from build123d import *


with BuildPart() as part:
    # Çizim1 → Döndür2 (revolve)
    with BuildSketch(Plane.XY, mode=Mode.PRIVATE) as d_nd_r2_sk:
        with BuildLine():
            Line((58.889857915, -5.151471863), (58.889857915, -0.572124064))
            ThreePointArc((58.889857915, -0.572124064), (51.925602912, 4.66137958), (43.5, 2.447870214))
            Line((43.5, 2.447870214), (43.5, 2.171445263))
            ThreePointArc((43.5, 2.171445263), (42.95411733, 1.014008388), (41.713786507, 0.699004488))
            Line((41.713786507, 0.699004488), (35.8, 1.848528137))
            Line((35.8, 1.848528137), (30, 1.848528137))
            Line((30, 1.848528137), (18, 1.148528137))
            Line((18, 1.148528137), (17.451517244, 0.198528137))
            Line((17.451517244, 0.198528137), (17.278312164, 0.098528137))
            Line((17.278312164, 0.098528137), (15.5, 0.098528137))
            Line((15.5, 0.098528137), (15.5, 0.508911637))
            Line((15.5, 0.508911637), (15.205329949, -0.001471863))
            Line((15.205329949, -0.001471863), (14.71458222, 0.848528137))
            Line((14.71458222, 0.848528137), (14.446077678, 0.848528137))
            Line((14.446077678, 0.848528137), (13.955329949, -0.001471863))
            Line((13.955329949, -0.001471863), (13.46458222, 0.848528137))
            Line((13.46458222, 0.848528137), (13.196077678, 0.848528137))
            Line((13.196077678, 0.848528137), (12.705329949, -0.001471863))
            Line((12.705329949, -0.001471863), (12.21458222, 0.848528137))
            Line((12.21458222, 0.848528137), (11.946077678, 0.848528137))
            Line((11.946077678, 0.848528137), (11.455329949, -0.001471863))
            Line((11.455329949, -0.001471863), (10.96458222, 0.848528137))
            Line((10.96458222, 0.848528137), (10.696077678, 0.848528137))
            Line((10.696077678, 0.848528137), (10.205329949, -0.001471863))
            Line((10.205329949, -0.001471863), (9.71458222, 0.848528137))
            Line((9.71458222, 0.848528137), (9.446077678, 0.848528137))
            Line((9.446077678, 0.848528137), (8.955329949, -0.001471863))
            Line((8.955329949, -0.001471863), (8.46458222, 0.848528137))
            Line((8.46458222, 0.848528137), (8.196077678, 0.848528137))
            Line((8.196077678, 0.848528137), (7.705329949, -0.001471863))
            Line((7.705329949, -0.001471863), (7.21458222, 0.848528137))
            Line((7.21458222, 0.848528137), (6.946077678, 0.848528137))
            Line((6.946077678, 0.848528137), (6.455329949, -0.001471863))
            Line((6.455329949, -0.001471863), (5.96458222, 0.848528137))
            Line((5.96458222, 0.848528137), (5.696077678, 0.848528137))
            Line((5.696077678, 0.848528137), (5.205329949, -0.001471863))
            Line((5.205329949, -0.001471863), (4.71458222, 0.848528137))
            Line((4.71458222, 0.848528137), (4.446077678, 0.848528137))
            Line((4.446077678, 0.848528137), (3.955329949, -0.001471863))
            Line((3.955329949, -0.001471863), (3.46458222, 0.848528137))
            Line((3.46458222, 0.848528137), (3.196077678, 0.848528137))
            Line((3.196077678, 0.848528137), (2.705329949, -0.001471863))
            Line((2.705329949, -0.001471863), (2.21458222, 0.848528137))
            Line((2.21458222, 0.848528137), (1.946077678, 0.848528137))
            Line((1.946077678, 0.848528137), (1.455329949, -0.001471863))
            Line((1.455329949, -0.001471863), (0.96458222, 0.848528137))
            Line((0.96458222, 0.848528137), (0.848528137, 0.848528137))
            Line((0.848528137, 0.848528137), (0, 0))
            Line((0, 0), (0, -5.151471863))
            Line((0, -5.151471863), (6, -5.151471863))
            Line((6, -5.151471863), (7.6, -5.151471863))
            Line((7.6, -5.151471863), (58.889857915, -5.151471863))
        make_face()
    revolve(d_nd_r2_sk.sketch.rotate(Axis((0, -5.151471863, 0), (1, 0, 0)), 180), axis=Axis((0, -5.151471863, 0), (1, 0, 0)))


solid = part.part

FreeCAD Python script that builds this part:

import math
import FreeCAD as App
import Part
import Sketcher
from FreeCAD import Vector
Q = App.Units.Quantity

doc = App.newDocument("Part")
body = doc.addObject("PartDesign::Body", "Body")

sketch1 = doc.addObject("Sketcher::SketchObject", "Sketch")
body.addObject(sketch1)
sketch1.AttachmentSupport = (doc.XY_Plane, [""])
sketch1.MapMode = "FlatFace"
sketch1.addGeometry([
    Part.LineSegment(Vector(58.89, -5.15, 0), Vector(58.89, -0.57, 0)),
    Part.ArcOfCircle(Part.Circle(Vector(50, -5.15, 0), Vector(0, 0, 1), 10), math.radians(27), math.radians(131)),
    Part.LineSegment(Vector(43.5, 2.45, 0), Vector(43.5, 2.17, 0)),
    Part.ArcOfCircle(Part.Circle(Vector(42, 2.17, 0), Vector(0, 0, 1), 1.5), math.radians(-101), math.radians(0)),
    Part.LineSegment(Vector(41.71, 0.7, 0), Vector(35.8, 1.85, 0)),
    Part.LineSegment(Vector(35.8, 1.85, 0), Vector(30, 1.85, 0)),
    Part.LineSegment(Vector(30, 1.85, 0), Vector(18, 1.15, 0)),
    Part.LineSegment(Vector(18, 1.15, 0), Vector(17.45, 0.2, 0)),
    Part.LineSegment(Vector(17.45, 0.2, 0), Vector(17.28, 0.1, 0)),
    Part.LineSegment(Vector(17.28, 0.1, 0), Vector(15.5, 0.1, 0)),
    Part.LineSegment(Vector(15.5, 0.1, 0), Vector(15.5, 0.51, 0)),
    Part.LineSegment(Vector(15.5, 0.51, 0), Vector(15.21, 0, 0)),
    Part.LineSegment(Vector(15.21, 0, 0), Vector(14.71, 0.85, 0)),
    Part.LineSegment(Vector(14.71, 0.85, 0), Vector(14.45, 0.85, 0)),
    Part.LineSegment(Vector(14.45, 0.85, 0), Vector(13.96, 0, 0)),
    Part.LineSegment(Vector(13.96, 0, 0), Vector(13.46, 0.85, 0)),
    Part.LineSegment(Vector(13.46, 0.85, 0), Vector(13.2, 0.85, 0)),
    Part.LineSegment(Vector(13.2, 0.85, 0), Vector(12.71, 0, 0)),
    Part.LineSegment(Vector(12.71, 0, 0), Vector(12.21, 0.85, 0)),
    Part.LineSegment(Vector(12.21, 0.85, 0), Vector(11.95, 0.85, 0)),
    Part.LineSegment(Vector(11.95, 0.85, 0), Vector(11.46, 0, 0)),
    Part.LineSegment(Vector(11.46, 0, 0), Vector(10.96, 0.85, 0)),
    Part.LineSegment(Vector(10.96, 0.85, 0), Vector(10.7, 0.85, 0)),
    Part.LineSegment(Vector(10.7, 0.85, 0), Vector(10.21, 0, 0)),
    Part.LineSegment(Vector(10.21, 0, 0), Vector(9.71, 0.85, 0)),
    Part.LineSegment(Vector(9.71, 0.85, 0), Vector(9.45, 0.85, 0)),
    Part.LineSegment(Vector(9.45, 0.85, 0), Vector(8.96, 0, 0)),
    Part.LineSegment(Vector(8.96, 0, 0), Vector(8.46, 0.85, 0)),
    Part.LineSegment(Vector(8.46, 0.85, 0), Vector(8.2, 0.85, 0)),
    Part.LineSegment(Vector(8.2, 0.85, 0), Vector(7.71, 0, 0)),
    Part.LineSegment(Vector(7.71, 0, 0), Vector(7.21, 0.85, 0)),
    Part.LineSegment(Vector(7.21, 0.85, 0), Vector(6.95, 0.85, 0)),
    Part.LineSegment(Vector(6.95, 0.85, 0), Vector(6.46, 0, 0)),
    Part.LineSegment(Vector(6.46, 0, 0), Vector(5.96, 0.85, 0)),
    Part.LineSegment(Vector(5.96, 0.85, 0), Vector(5.7, 0.85, 0)),
    Part.LineSegment(Vector(5.7, 0.85, 0), Vector(5.21, 0, 0)),
    Part.LineSegment(Vector(5.21, 0, 0), Vector(4.71, 0.85, 0)),
    Part.LineSegment(Vector(4.71, 0.85, 0), Vector(4.45, 0.85, 0)),
    Part.LineSegment(Vector(4.45, 0.85, 0), Vector(3.96, 0, 0)),
    Part.LineSegment(Vector(3.96, 0, 0), Vector(3.46, 0.85, 0)),
    Part.LineSegment(Vector(3.46, 0.85, 0), Vector(3.2, 0.85, 0)),
    Part.LineSegment(Vector(3.2, 0.85, 0), Vector(2.71, 0, 0)),
    Part.LineSegment(Vector(2.71, 0, 0), Vector(2.21, 0.85, 0)),
    Part.LineSegment(Vector(2.21, 0.85, 0), Vector(1.95, 0.85, 0)),
    Part.LineSegment(Vector(1.95, 0.85, 0), Vector(1.46, 0, 0)),
    Part.LineSegment(Vector(1.46, 0, 0), Vector(0.96, 0.85, 0)),
    Part.LineSegment(Vector(0.96, 0.85, 0), Vector(0.85, 0.85, 0)),
    Part.LineSegment(Vector(0.85, 0.85, 0), Vector(0, 0, 0)),
    Part.LineSegment(Vector(0, 0, 0), Vector(0, -5.15, 0)),
    Part.LineSegment(Vector(0, -5.15, 0), Vector(58.89, -5.15, 0)),
], False)
sketch1.addGeometry(Part.LineSegment(Vector(0, -5.15, 0), Vector(58.89, -5.15, 0)), True)
sketch1.addConstraint([
    Sketcher.Constraint("Coincident", 0, 2, 1, 1),
    Sketcher.Constraint("Coincident", 1, 2, 2, 1),
    Sketcher.Constraint("Tangent", 2, 2, 3, 2),
    Sketcher.Constraint("Tangent", 3, 1, 4, 1),
    Sketcher.Constraint("Coincident", 4, 2, 5, 1),
    Sketcher.Constraint("Coincident", 5, 2, 6, 1),
    Sketcher.Constraint("Coincident", 6, 2, 7, 1),
    Sketcher.Constraint("Coincident", 7, 2, 8, 1),
    Sketcher.Constraint("Coincident", 8, 2, 9, 1),
    Sketcher.Constraint("Coincident", 9, 2, 10, 1),
    Sketcher.Constraint("Coincident", 10, 2, 11, 1),
    Sketcher.Constraint("Coincident", 11, 2, 12, 1),
    Sketcher.Constraint("Coincident", 12, 2, 13, 1),
    Sketcher.Constraint("Coincident", 13, 2, 14, 1),
    Sketcher.Constraint("Coincident", 14, 2, 15, 1),
    Sketcher.Constraint("Coincident", 15, 2, 16, 1),
    Sketcher.Constraint("Coincident", 16, 2, 17, 1),
    Sketcher.Constraint("Coincident", 17, 2, 18, 1),
    Sketcher.Constraint("Coincident", 18, 2, 19, 1),
    Sketcher.Constraint("Coincident", 19, 2, 20, 1),
    Sketcher.Constraint("Coincident", 20, 2, 21, 1),
    Sketcher.Constraint("Coincident", 21, 2, 22, 1),
    Sketcher.Constraint("Coincident", 22, 2, 23, 1),
    Sketcher.Constraint("Coincident", 23, 2, 24, 1),
    Sketcher.Constraint("Coincident", 24, 2, 25, 1),
    Sketcher.Constraint("Coincident", 25, 2, 26, 1),
    Sketcher.Constraint("Coincident", 26, 2, 27, 1),
    Sketcher.Constraint("Coincident", 27, 2, 28, 1),
    Sketcher.Constraint("Coincident", 28, 2, 29, 1),
    Sketcher.Constraint("Coincident", 29, 2, 30, 1),
    Sketcher.Constraint("Coincident", 30, 2, 31, 1),
    Sketcher.Constraint("Coincident", 31, 2, 32, 1),
    Sketcher.Constraint("Coincident", 32, 2, 33, 1),
    Sketcher.Constraint("Coincident", 33, 2, 34, 1),
    Sketcher.Constraint("Coincident", 34, 2, 35, 1),
    Sketcher.Constraint("Coincident", 35, 2, 36, 1),
    Sketcher.Constraint("Coincident", 36, 2, 37, 1),
    Sketcher.Constraint("Coincident", 37, 2, 38, 1),
    Sketcher.Constraint("Coincident", 38, 2, 39, 1),
    Sketcher.Constraint("Coincident", 39, 2, 40, 1),
    Sketcher.Constraint("Coincident", 40, 2, 41, 1),
    Sketcher.Constraint("Coincident", 41, 2, 42, 1),
    Sketcher.Constraint("Coincident", 42, 2, 43, 1),
    Sketcher.Constraint("Coincident", 43, 2, 44, 1),
    Sketcher.Constraint("Coincident", 44, 2, 45, 1),
    Sketcher.Constraint("Coincident", 45, 2, 46, 1),
    Sketcher.Constraint("Coincident", 46, 2, 47, 1),
    Sketcher.Constraint("Coincident", 47, 2, 48, 1),
    Sketcher.Constraint("Coincident", 48, 2, 49, 1),
    Sketcher.Constraint("Coincident", 49, 2, 0, 1),
    Sketcher.Constraint("Vertical", 0),
    Sketcher.Constraint("Vertical", 2),
    Sketcher.Constraint("Horizontal", 5),
    Sketcher.Constraint("Horizontal", 9),
    Sketcher.Constraint("Vertical", 10),
    Sketcher.Constraint("Horizontal", 13),
    Sketcher.Constraint("Horizontal", 16),
    Sketcher.Constraint("Horizontal", 19),
    Sketcher.Constraint("Horizontal", 22),
    Sketcher.Constraint("Horizontal", 25),
    Sketcher.Constraint("Horizontal", 28),
    Sketcher.Constraint("Horizontal", 31),
    Sketcher.Constraint("Horizontal", 34),
    Sketcher.Constraint("Horizontal", 37),
    Sketcher.Constraint("Horizontal", 40),
    Sketcher.Constraint("Horizontal", 43),
    Sketcher.Constraint("Horizontal", 46),
    Sketcher.Constraint("Vertical", 48),
    Sketcher.Constraint("Horizontal", 49),
    Sketcher.Constraint("Horizontal", 50),
    Sketcher.Constraint("Coincident", 47, 2, -1, 1),
    Sketcher.Constraint("Coincident", 50, 1, 48, 2),
    Sketcher.Constraint("Parallel", 7, 11),
    Sketcher.Constraint("Perpendicular", 8, 12),
    Sketcher.Constraint("Parallel", 11, 14),
    Sketcher.Constraint("Parallel", 12, 15),
    Sketcher.Constraint("Parallel", 14, 17),
    Sketcher.Constraint("Parallel", 15, 18),
    Sketcher.Constraint("Parallel", 17, 20),
    Sketcher.Constraint("Parallel", 18, 21),
    Sketcher.Constraint("Parallel", 20, 23),
    Sketcher.Constraint("Parallel", 21, 24),
    Sketcher.Constraint("Parallel", 23, 26),
    Sketcher.Constraint("Parallel", 24, 27),
    Sketcher.Constraint("Parallel", 26, 29),
    Sketcher.Constraint("Parallel", 27, 30),
    Sketcher.Constraint("Parallel", 29, 32),
    Sketcher.Constraint("Parallel", 30, 33),
    Sketcher.Constraint("Parallel", 32, 35),
    Sketcher.Constraint("Parallel", 33, 36),
    Sketcher.Constraint("Parallel", 35, 38),
    Sketcher.Constraint("Parallel", 36, 39),
    Sketcher.Constraint("Parallel", 38, 41),
    Sketcher.Constraint("Parallel", 39, 42),
    Sketcher.Constraint("Parallel", 41, 44),
    Sketcher.Constraint("Parallel", 42, 45),
    Sketcher.Constraint("Horizontal", 11, 2, 14, 2),
    Sketcher.Constraint("Horizontal", 13, 2, 15, 2),
    Sketcher.Constraint("Horizontal", 14, 2, 17, 2),
    Sketcher.Constraint("Horizontal", 16, 2, 18, 2),
    Sketcher.Constraint("Horizontal", 17, 2, 20, 2),
    Sketcher.Constraint("Horizontal", 19, 2, 21, 2),
    Sketcher.Constraint("Horizontal", 20, 2, 23, 2),
    Sketcher.Constraint("Horizontal", 22, 2, 24, 2),
    Sketcher.Constraint("Horizontal", 23, 2, 26, 2),
    Sketcher.Constraint("Horizontal", 25, 2, 27, 2),
    Sketcher.Constraint("Horizontal", 26, 2, 29, 2),
    Sketcher.Constraint("Horizontal", 28, 2, 30, 2),
    Sketcher.Constraint("Horizontal", 29, 2, 32, 2),
    Sketcher.Constraint("Horizontal", 31, 2, 33, 2),
    Sketcher.Constraint("Horizontal", 32, 2, 35, 2),
    Sketcher.Constraint("Horizontal", 34, 2, 36, 2),
    Sketcher.Constraint("Horizontal", 35, 2, 38, 2),
    Sketcher.Constraint("Horizontal", 37, 2, 39, 2),
    Sketcher.Constraint("Horizontal", 38, 2, 41, 2),
    Sketcher.Constraint("Horizontal", 40, 2, 42, 2),
    Sketcher.Constraint("Horizontal", 41, 2, 44, 2),
    Sketcher.Constraint("Horizontal", 43, 2, 45, 2),
    Sketcher.Constraint("Horizontal", 1, 3, 48, 2),
    Sketcher.Constraint("Vertical", 0, 2, 50, 2),
    Sketcher.Constraint("Equal", 13, 16),
    Sketcher.Constraint("Equal", 16, 19),
    Sketcher.Constraint("Equal", 19, 22),
    Sketcher.Constraint("Equal", 22, 25),
    Sketcher.Constraint("Equal", 25, 28),
    Sketcher.Constraint("Equal", 28, 31),
    Sketcher.Constraint("Equal", 31, 34),
    Sketcher.Constraint("Equal", 34, 37),
    Sketcher.Constraint("Equal", 37, 40),
    Sketcher.Constraint("Equal", 40, 43),
    Sketcher.Constraint("Equal", 12, 14),
    Sketcher.Constraint("Radius", 1, 10.0),
    Sketcher.Constraint("Radius", 3, 1.5),
    Sketcher.Constraint("Angle", 4, Q("169 deg")),
    Sketcher.Constraint("Angle", 7, Q("-120 deg")),
    Sketcher.Constraint("Angle", 47, Q("-135 deg")),
    Sketcher.Constraint("DistanceX", 5, 2, 5, 1, 5.8),
    Sketcher.Constraint("DistanceX", -1, 1, 1, 3, 50.0),
    Sketcher.Constraint("DistanceX", -1, 1, 3, 3, 42.0),
    Sketcher.Constraint("DistanceX", -1, 1, 5, 2, 30.0),
    Sketcher.Constraint("DistanceX", -1, 1, 6, 2, 18.0),
    Sketcher.Constraint("DistanceY", 1, 3, 4, 2, 7.0),
    Sketcher.Constraint("DistanceY", 48, 2, 46, 2, 6.0),
    Sketcher.Constraint("Distance", 8, 0.2),
    Sketcher.Constraint("Distance", 47, 1.2),
    Sketcher.Constraint("DistanceX", -1, 1, 9, 2, 15.5),
    Sketcher.Constraint("DistanceY", 6, 2, 5, 2, 0.7),
    Sketcher.Constraint("DistanceY", 11, 2, 9, 2, 0.1),
    Sketcher.Constraint("DistanceY", 7, 2, 6, 2, 0.95),
    Sketcher.Constraint("DistanceX", 14, 2, 11, 2, 1.25),
    Sketcher.Constraint("DistanceX", 46, 2, 44, 2, 0.606802),
    Sketcher.Constraint("DistanceX", 49, 1, 49, 2, 58.889858),
])
revolution = doc.addObject("PartDesign::Revolution", "Revolution")
body.addObject(revolution)
revolution.Profile = sketch1
revolution.ReferenceAxis = (sketch1, ["Axis0"])
revolution.Angle = 360

doc.recompute()
